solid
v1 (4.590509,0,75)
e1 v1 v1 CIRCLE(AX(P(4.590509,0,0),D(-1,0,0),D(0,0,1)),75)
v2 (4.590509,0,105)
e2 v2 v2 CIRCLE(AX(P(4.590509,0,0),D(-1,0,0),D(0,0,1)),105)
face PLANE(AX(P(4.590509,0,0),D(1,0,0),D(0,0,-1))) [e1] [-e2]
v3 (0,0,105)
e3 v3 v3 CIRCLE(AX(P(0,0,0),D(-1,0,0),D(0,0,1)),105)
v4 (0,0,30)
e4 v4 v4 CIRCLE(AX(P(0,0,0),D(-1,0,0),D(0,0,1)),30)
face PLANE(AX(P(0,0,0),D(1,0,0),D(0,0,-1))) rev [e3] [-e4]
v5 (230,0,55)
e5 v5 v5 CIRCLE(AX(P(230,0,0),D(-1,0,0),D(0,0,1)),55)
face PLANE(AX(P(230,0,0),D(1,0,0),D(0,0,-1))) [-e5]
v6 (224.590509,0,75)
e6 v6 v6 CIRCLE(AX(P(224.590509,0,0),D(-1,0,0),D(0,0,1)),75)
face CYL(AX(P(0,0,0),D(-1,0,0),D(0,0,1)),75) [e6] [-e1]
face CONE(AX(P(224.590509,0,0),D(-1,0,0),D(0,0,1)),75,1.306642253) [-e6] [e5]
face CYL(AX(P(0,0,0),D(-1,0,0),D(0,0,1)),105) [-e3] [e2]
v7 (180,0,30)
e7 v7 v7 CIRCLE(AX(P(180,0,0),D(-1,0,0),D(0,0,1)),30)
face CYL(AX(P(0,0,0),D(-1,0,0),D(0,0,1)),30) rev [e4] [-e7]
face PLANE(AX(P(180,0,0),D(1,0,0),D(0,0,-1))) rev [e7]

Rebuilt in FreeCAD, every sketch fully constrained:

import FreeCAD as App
import Part
import Sketcher
Q = App.Units.Quantity


def add_polygon(sketch, points):
    """Adds a closed chain of lines whose ends are joined by coincident constraints."""
    first, n = sketch.GeometryCount, len(points)
    for a, b in zip(points, points[1:] + points[:1]):
        sketch.addGeometry(Part.LineSegment(App.Vector(*a, 0), App.Vector(*b, 0)), False)
    for i in range(n):
        sketch.addConstraint(Sketcher.Constraint("Coincident", first + i, 2, first + (i + 1) % n, 1))

doc = App.newDocument("Part")
body = doc.addObject("PartDesign::Body", "Body")

# Sketch on XY plane
sketch1 = body.newObject("Sketcher::SketchObject", "Sketch")
sketch1.AttachmentSupport = (doc.getObject("XY_Plane"), [""])
sketch1.MapMode = "FlatFace"
add_polygon(sketch1, [(180, 30), (180, 0), (230, 0), (230, 55), (224.590509, 75), (4.590509, 75), (4.590509, 105), (0, 105), (0, 30)])  # lines 0-8
sketch1.addConstraint(Sketcher.Constraint("Vertical", 0))
sketch1.addConstraint(Sketcher.Constraint("Horizontal", 1))
sketch1.addConstraint(Sketcher.Constraint("Vertical", 2))
sketch1.addConstraint(Sketcher.Constraint("Horizontal", 4))
sketch1.addConstraint(Sketcher.Constraint("Vertical", 5))
sketch1.addConstraint(Sketcher.Constraint("Horizontal", 6))
sketch1.addConstraint(Sketcher.Constraint("Vertical", 7))
sketch1.addConstraint(Sketcher.Constraint("Horizontal", 8))
sketch1.addConstraint(Sketcher.Constraint("PointOnObject", 0, 2, -1))
sketch1.addConstraint(Sketcher.Constraint("PointOnObject", 6, 2, -2))
sketch1.addConstraint(Sketcher.Constraint("Equal", 0, 5))
sketch1.addConstraint(Sketcher.Constraint("DistanceX", 1, 1, 1, 2, Q("50 mm")))
sketch1.addConstraint(Sketcher.Constraint("DistanceX", 4, 2, 4, 1, Q("220 mm")))
sketch1.addConstraint(Sketcher.Constraint("DistanceX", 8, 1, 8, 2, Q("180 mm")))
sketch1.addConstraint(Sketcher.Constraint("DistanceY", 0, 2, 0, 1, Q("30 mm")))
sketch1.addConstraint(Sketcher.Constraint("DistanceY", 2, 1, 2, 2, Q("55 mm")))
sketch1.addConstraint(Sketcher.Constraint("DistanceY", 7, 2, 7, 1, Q("75 mm")))
sketch1.addConstraint(Sketcher.Constraint("DistanceX", 6, 2, 6, 1, Q("4.590509 mm")))
revolution = body.newObject("PartDesign::Revolution", "Revolution")
revolution.Profile = sketch1
revolution.ReferenceAxis = (sketch1, ["H_Axis"])
revolution.Angle = 360

doc.recompute()
